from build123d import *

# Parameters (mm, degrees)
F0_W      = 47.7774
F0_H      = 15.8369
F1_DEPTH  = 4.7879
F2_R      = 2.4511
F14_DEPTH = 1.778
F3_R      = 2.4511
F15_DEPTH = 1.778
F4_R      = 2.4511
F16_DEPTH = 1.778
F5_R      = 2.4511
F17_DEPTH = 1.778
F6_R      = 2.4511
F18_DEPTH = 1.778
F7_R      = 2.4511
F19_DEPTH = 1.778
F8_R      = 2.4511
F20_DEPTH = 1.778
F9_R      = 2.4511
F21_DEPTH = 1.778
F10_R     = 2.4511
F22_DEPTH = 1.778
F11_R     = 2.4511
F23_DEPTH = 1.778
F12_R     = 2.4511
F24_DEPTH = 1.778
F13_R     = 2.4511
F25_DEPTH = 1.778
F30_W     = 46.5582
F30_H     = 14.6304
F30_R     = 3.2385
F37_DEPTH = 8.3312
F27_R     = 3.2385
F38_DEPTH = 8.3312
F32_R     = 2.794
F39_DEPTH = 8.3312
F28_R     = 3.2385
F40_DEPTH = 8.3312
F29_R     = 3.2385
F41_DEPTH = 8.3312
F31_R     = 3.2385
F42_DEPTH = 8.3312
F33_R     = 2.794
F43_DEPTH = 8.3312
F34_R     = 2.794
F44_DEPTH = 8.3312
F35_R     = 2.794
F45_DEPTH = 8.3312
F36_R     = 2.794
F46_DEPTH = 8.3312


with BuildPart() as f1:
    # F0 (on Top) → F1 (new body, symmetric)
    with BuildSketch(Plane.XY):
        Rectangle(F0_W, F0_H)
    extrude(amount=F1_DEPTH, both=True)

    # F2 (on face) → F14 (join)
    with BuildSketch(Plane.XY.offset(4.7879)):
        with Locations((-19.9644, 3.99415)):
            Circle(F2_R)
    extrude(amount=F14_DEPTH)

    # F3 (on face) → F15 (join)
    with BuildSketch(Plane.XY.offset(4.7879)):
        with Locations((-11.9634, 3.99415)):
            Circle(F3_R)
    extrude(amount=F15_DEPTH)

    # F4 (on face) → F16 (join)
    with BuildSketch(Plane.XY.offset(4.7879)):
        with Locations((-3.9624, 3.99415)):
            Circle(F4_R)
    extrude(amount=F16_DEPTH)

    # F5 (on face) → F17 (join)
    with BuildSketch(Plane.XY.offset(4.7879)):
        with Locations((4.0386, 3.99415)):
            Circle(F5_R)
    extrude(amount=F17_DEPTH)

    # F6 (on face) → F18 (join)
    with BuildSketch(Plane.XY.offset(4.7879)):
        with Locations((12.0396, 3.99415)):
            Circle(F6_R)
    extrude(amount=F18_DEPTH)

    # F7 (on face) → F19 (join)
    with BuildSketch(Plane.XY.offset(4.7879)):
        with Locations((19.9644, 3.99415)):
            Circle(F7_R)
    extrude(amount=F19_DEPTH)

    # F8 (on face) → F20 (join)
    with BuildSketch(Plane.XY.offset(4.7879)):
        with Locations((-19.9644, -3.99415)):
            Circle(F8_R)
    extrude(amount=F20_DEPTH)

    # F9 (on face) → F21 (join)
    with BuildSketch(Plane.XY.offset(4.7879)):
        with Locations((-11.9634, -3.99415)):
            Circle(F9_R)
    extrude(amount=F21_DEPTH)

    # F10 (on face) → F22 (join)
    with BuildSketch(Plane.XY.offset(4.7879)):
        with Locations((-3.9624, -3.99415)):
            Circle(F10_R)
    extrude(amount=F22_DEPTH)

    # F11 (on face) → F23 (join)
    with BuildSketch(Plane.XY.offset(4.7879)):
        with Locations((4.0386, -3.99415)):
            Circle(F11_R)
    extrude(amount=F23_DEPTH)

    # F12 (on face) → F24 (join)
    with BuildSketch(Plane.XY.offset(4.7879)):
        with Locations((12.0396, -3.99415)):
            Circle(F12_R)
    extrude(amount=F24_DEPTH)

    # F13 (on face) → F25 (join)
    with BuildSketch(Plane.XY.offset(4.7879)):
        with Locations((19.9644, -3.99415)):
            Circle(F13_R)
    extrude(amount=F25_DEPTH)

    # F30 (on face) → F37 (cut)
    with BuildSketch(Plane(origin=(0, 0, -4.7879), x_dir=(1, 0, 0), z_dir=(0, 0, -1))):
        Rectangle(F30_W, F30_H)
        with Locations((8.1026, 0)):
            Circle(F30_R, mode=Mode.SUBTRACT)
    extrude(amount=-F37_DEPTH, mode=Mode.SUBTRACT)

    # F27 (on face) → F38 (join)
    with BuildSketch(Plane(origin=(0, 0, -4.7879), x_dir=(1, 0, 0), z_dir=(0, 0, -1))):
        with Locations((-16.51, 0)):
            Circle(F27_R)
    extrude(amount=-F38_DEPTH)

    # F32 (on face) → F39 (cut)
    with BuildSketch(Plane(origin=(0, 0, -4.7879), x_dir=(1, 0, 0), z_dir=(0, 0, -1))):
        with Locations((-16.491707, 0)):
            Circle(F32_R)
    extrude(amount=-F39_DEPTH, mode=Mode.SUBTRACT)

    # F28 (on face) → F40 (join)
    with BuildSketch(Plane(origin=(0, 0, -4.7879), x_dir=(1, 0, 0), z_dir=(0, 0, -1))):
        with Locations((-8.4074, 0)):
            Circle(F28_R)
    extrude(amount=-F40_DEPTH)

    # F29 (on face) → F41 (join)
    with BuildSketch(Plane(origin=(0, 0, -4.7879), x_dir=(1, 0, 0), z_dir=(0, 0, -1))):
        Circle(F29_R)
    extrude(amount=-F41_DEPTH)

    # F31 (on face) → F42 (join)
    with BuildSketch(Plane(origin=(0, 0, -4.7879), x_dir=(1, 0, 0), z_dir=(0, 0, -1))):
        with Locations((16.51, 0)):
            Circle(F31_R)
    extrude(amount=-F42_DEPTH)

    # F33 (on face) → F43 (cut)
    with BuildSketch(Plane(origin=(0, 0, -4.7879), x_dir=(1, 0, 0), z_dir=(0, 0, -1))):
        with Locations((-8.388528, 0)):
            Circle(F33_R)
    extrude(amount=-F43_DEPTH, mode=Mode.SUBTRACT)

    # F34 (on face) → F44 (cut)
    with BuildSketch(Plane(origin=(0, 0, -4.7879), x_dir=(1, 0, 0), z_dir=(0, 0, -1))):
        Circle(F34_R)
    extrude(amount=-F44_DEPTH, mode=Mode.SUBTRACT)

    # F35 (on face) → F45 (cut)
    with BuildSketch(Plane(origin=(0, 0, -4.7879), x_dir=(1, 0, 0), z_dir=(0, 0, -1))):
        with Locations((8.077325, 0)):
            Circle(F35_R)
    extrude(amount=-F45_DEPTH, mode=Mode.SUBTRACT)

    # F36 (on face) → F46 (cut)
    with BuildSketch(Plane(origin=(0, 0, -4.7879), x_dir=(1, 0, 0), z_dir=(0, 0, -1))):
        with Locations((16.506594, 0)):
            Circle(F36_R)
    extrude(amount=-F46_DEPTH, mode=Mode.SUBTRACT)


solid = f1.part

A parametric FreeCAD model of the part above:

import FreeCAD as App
import Part
import Sketcher

V = App.Vector
Q = App.Units.Quantity


def add_polygon(sketch, points):
    """Adds a closed chain of lines whose ends are joined by coincident constraints."""
    first, n = sketch.GeometryCount, len(points)
    for a, b in zip(points, points[1:] + points[:1]):
        sketch.addGeometry(Part.LineSegment(App.Vector(*a, 0), App.Vector(*b, 0)), False)
    for i in range(n):
        sketch.addConstraint(Sketcher.Constraint("Coincident", first + i, 2, first + (i + 1) % n, 1))

doc = App.newDocument("Part")
params = doc.addObject("Spreadsheet::Sheet", "Params")
for row, (alias, value) in enumerate([
    ("sketch1_width", "1.881 in"),
    ("pad1_length", "0.377 in"),
    ("sketch2_diameter", "0.193 in"),
    ("pad2_length", "0.07 in"),
    ("sketch3_diameter", "0.193 in"),
    ("pad3_length", "0.07 in"),
    ("sketch4_diameter", "0.193 in"),
    ("pad4_length", "0.07 in"),
    ("sketch5_diameter", "0.193 in"),
    ("pad5_length", "0.07 in"),
    ("sketch6_diameter", "0.193 in"),
    ("pad6_length", "0.07 in"),
    ("sketch7_diameter", "0.193 in"),
    ("pad7_length", "0.07 in"),
    ("sketch8_diameter", "0.193 in"),
    ("pad8_length", "0.07 in"),
    ("sketch9_diameter", "0.193 in"),
    ("pad9_length", "0.07 in"),
    ("sketch10_diameter", "0.193 in"),
    ("pad10_length", "0.07 in"),
    ("sketch11_diameter", "0.193 in"),
    ("pad11_length", "0.07 in"),
    ("sketch12_diameter", "0.193 in"),
    ("pad12_length", "0.07 in"),
    ("sketch13_diameter", "0.193 in"),
    ("pad13_length", "0.07 in"),
    ("sketch14_diameter", "0.255 in"),
    ("sketch14_width", "1.833 in"),
    ("sketch14_height", "0.576 in"),
    ("pocket1_length", "0.328 in"),
    ("sketch15_diameter", "0.255 in"),
    ("pad14_length", "0.328 in"),
    ("sketch16_diameter", "0.22 in"),
    ("pocket2_length", "0.328 in"),
    ("sketch17_diameter", "0.255 in"),
    ("pad15_length", "0.328 in"),
    ("sketch18_diameter", "0.255 in"),
    ("pad16_length", "0.328 in"),
    ("sketch19_diameter", "0.255 in"),
    ("pad17_length", "0.328 in"),
    ("sketch20_diameter", "0.22 in"),
    ("pocket3_length", "0.328 in"),
    ("sketch21_diameter", "0.22 in"),
    ("pocket4_length", "0.328 in"),
    ("sketch22_diameter", "0.22 in"),
    ("pocket5_length", "0.328 in"),
    ("sketch23_diameter", "0.22 in"),
    ("pocket6_length", "0.328 in"),
], start=1):
    params.set(f"A{row}", alias)
    params.set(f"B{row}", "=" + value)
    params.setAlias(f"B{row}", alias)

body = doc.addObject("PartDesign::Body", "Body")

# Sketch on XY plane
sketch1 = body.newObject("Sketcher::SketchObject", "Sketch")
sketch1.AttachmentSupport = (doc.getObject("XY_Plane"), [""])
sketch1.MapMode = "FlatFace"
add_polygon(sketch1, [(-24, 8), (-24, -8), (24, -8), (24, 8)])  # lines 0-3
sketch1.addConstraint([
    Sketcher.Constraint("Vertical", 0),
    Sketcher.Constraint("Horizontal", 1),
    Sketcher.Constraint("Vertical", 2),
    Sketcher.Constraint("Horizontal", 3),
    Sketcher.Constraint("Symmetric", 0, 2, 2, 2, -1, 1),
    Sketcher.Constraint("DistanceX", 1, 1, 1, 2, Q("1.881 in")),
    Sketcher.Constraint("DistanceY", 0, 2, 0, 1, Q("0.6235 in")),
])
sketch1.setExpression("Constraints[9]", "Params.sketch1_width")
pad1 = body.newObject("PartDesign::Pad", "Pad")
pad1.Profile = sketch1
pad1.setExpression("Length", "Params.pad1_length")
pad1.Midplane = True

# Sketch on XY plane
sketch2 = body.newObject("Sketcher::SketchObject", "Sketch001")
sketch2.AttachmentSupport = (doc.getObject("XY_Plane"), [""])
sketch2.MapMode = "FlatFace"
sketch2.AttachmentOffset = App.Placement(V(0, 0, 0.1885 * 25.4), App.Rotation())
sketch2.addGeometry(Part.Circle(V(-20, 4, 0), V(0, 0, 1), 2.5), False)
sketch2.addConstraint([
    Sketcher.Constraint("Diameter", 0, Q("0.193 in")),
    Sketcher.Constraint("DistanceX", 0, 3, -1, 1, Q("0.786 in")),
    Sketcher.Constraint("DistanceY", -1, 1, 0, 3, Q("3.99415 mm")),
])
sketch2.setExpression("Constraints[0]", "Params.sketch2_diameter")
pad2 = body.newObject("PartDesign::Pad", "Pad001")
pad2.Profile = sketch2
pad2.setExpression("Length", "Params.pad2_length")

# Sketch on XY plane
sketch3 = body.newObject("Sketcher::SketchObject", "Sketch002")
sketch3.AttachmentSupport = (doc.getObject("XY_Plane"), [""])
sketch3.MapMode = "FlatFace"
sketch3.AttachmentOffset = App.Placement(V(0, 0, 0.1885 * 25.4), App.Rotation())
sketch3.addGeometry(Part.Circle(V(-12, 4, 0), V(0, 0, 1), 2.5), False)
sketch3.addConstraint([
    Sketcher.Constraint("Diameter", 0, Q("0.193 in")),
    Sketcher.Constraint("DistanceX", 0, 3, -1, 1, Q("0.471 in")),
    Sketcher.Constraint("DistanceY", -1, 1, 0, 3, Q("3.99415 mm")),
])
sketch3.setExpression("Constraints[0]", "Params.sketch3_diameter")
pad3 = body.newObject("PartDesign::Pad", "Pad002")
pad3.Profile = sketch3
pad3.setExpression("Length", "Params.pad3_length")

# Sketch on XY plane
sketch4 = body.newObject("Sketcher::SketchObject", "Sketch003")
sketch4.AttachmentSupport = (doc.getObject("XY_Plane"), [""])
sketch4.MapMode = "FlatFace"
sketch4.AttachmentOffset = App.Placement(V(0, 0, 0.1885 * 25.4), App.Rotation())
sketch4.addGeometry(Part.Circle(V(-4, 4, 0), V(0, 0, 1), 2.5), False)
sketch4.addConstraint([
    Sketcher.Constraint("Diameter", 0, Q("0.193 in")),
    Sketcher.Constraint("DistanceX", 0, 3, -1, 1, Q("0.156 in")),
    Sketcher.Constraint("DistanceY", -1, 1, 0, 3, Q("3.99415 mm")),
])
sketch4.setExpression("Constraints[0]", "Params.sketch4_diameter")
pad4 = body.newObject("PartDesign::Pad", "Pad003")
pad4.Profile = sketch4
pad4.setExpression("Length", "Params.pad4_length")

# Sketch on XY plane
sketch5 = body.newObject("Sketcher::SketchObject", "Sketch004")
sketch5.AttachmentSupport = (doc.getObject("XY_Plane"), [""])
sketch5.MapMode = "FlatFace"
sketch5.AttachmentOffset = App.Placement(V(0, 0, 0.1885 * 25.4), App.Rotation())
sketch5.addGeometry(Part.Circle(V(4, 4, 0), V(0, 0, 1), 2.5), False)
sketch5.addConstraint([
    Sketcher.Constraint("Diameter", 0, Q("0.193 in")),
    Sketcher.Constraint("DistanceX", -1, 1, 0, 3, Q("0.159 in")),
    Sketcher.Constraint("DistanceY", -1, 1, 0, 3, Q("3.99415 mm")),
])
sketch5.setExpression("Constraints[0]", "Params.sketch5_diameter")
pad5 = body.newObject("PartDesign::Pad", "Pad004")
pad5.Profile = sketch5
pad5.setExpression("Length", "Params.pad5_length")

# Sketch on XY plane
sketch6 = body.newObject("Sketcher::SketchObject", "Sketch005")
sketch6.AttachmentSupport = (doc.getObject("XY_Plane"), [""])
sketch6.MapMode = "FlatFace"
sketch6.AttachmentOffset = App.Placement(V(0, 0, 0.1885 * 25.4), App.Rotation())
sketch6.addGeometry(Part.Circle(V(12, 4, 0), V(0, 0, 1), 2.5), False)
sketch6.addConstraint([
    Sketcher.Constraint("Diameter", 0, Q("0.193 in")),
    Sketcher.Constraint("DistanceX", -1, 1, 0, 3, Q("0.474 in")),
    Sketcher.Constraint("DistanceY", -1, 1, 0, 3, Q("3.99415 mm")),
])
sketch6.setExpression("Constraints[0]", "Params.sketch6_diameter")
pad6 = body.newObject("PartDesign::Pad", "Pad005")
pad6.Profile = sketch6
pad6.setExpression("Length", "Params.pad6_length")

# Sketch on XY plane
sketch7 = body.newObject("Sketcher::SketchObject", "Sketch006")
sketch7.AttachmentSupport = (doc.getObject("XY_Plane"), [""])
sketch7.MapMode = "FlatFace"
sketch7.AttachmentOffset = App.Placement(V(0, 0, 0.1885 * 25.4), App.Rotation())
sketch7.addGeometry(Part.Circle(V(20, 4, 0), V(0, 0, 1), 2.5), False)
sketch7.addConstraint([
    Sketcher.Constraint("Diameter", 0, Q("0.193 in")),
    Sketcher.Constraint("DistanceX", -1, 1, 0, 3, Q("0.786 in")),
    Sketcher.Constraint("DistanceY", -1, 1, 0, 3, Q("3.99415 mm")),
])
sketch7.setExpression("Constraints[0]", "Params.sketch7_diameter")
pad7 = body.newObject("PartDesign::Pad", "Pad006")
pad7.Profile = sketch7
pad7.setExpression("Length", "Params.pad7_length")

# Sketch on XY plane
sketch8 = body.newObject("Sketcher::SketchObject", "Sketch007")
sketch8.AttachmentSupport = (doc.getObject("XY_Plane"), [""])
sketch8.MapMode = "FlatFace"
sketch8.AttachmentOffset = App.Placement(V(0, 0, 0.1885 * 25.4), App.Rotation())
sketch8.addGeometry(Part.Circle(V(-20, -4, 0), V(0, 0, 1), 2.5), False)
sketch8.addConstraint([
    Sketcher.Constraint("Diameter", 0, Q("0.193 in")),
    Sketcher.Constraint("DistanceX", 0, 3, -1, 1, Q("0.786 in")),
    Sketcher.Constraint("DistanceY", 0, 3, -1, 1, Q("3.99415 mm")),
])
sketch8.setExpression("Constraints[0]", "Params.sketch8_diameter")
pad8 = body.newObject("PartDesign::Pad", "Pad007")
pad8.Profile = sketch8
pad8.setExpression("Length", "Params.pad8_length")

# Sketch on XY plane
sketch9 = body.newObject("Sketcher::SketchObject", "Sketch008")
sketch9.AttachmentSupport = (doc.getObject("XY_Plane"), [""])
sketch9.MapMode = "FlatFace"
sketch9.AttachmentOffset = App.Placement(V(0, 0, 0.1885 * 25.4), App.Rotation())
sketch9.addGeometry(Part.Circle(V(-12, -4, 0), V(0, 0, 1), 2.5), False)
sketch9.addConstraint([
    Sketcher.Constraint("Diameter", 0, Q("0.193 in")),
    Sketcher.Constraint("DistanceX", 0, 3, -1, 1, Q("0.471 in")),
    Sketcher.Constraint("DistanceY", 0, 3, -1, 1, Q("3.99415 mm")),
])
sketch9.setExpression("Constraints[0]", "Params.sketch9_diameter")
pad9 = body.newObject("PartDesign::Pad", "Pad008")
pad9.Profile = sketch9
pad9.setExpression("Length", "Params.pad9_length")

# Sketch on XY plane
sketch10 = body.newObject("Sketcher::SketchObject", "Sketch009")
sketch10.AttachmentSupport = (doc.getObject("XY_Plane"), [""])
sketch10.MapMode = "FlatFace"
sketch10.AttachmentOffset = App.Placement(V(0, 0, 0.1885 * 25.4), App.Rotation())
sketch10.addGeometry(Part.Circle(V(-4, -4, 0), V(0, 0, 1), 2.5), False)
sketch10.addConstraint([
    Sketcher.Constraint("Diameter", 0, Q("0.193 in")),
    Sketcher.Constraint("DistanceX", 0, 3, -1, 1, Q("0.156 in")),
    Sketcher.Constraint("DistanceY", 0, 3, -1, 1, Q("3.99415 mm")),
])
sketch10.setExpression("Constraints[0]", "Params.sketch10_diameter")
pad10 = body.newObject("PartDesign::Pad", "Pad009")
pad10.Profile = sketch10
pad10.setExpression("Length", "Params.pad10_length")

# Sketch on XY plane
sketch11 = body.newObject("Sketcher::SketchObject", "Sketch010")
sketch11.AttachmentSupport = (doc.getObject("XY_Plane"), [""])
sketch11.MapMode = "FlatFace"
sketch11.AttachmentOffset = App.Placement(V(0, 0, 0.1885 * 25.4), App.Rotation())
sketch11.addGeometry(Part.Circle(V(4, -4, 0), V(0, 0, 1), 2.5), False)
sketch11.addConstraint([
    Sketcher.Constraint("Diameter", 0, Q("0.193 in")),
    Sketcher.Constraint("DistanceX", -1, 1, 0, 3, Q("0.159 in")),
    Sketcher.Constraint("DistanceY", 0, 3, -1, 1, Q("3.99415 mm")),
])
sketch11.setExpression("Constraints[0]", "Params.sketch11_diameter")
pad11 = body.newObject("PartDesign::Pad", "Pad010")
pad11.Profile = sketch11
pad11.setExpression("Length", "Params.pad11_length")

# Sketch on XY plane
sketch12 = body.newObject("Sketcher::SketchObject", "Sketch011")
sketch12.AttachmentSupport = (doc.getObject("XY_Plane"), [""])
sketch12.MapMode = "FlatFace"
sketch12.AttachmentOffset = App.Placement(V(0, 0, 0.1885 * 25.4), App.Rotation())
sketch12.addGeometry(Part.Circle(V(12, -4, 0), V(0, 0, 1), 2.5), False)
sketch12.addConstraint([
    Sketcher.Constraint("Diameter", 0, Q("0.193 in")),
    Sketcher.Constraint("DistanceX", -1, 1, 0, 3, Q("0.474 in")),
    Sketcher.Constraint("DistanceY", 0, 3, -1, 1, Q("3.99415 mm")),
])
sketch12.setExpression("Constraints[0]", "Params.sketch12_diameter")
pad12 = body.newObject("PartDesign::Pad", "Pad011")
pad12.Profile = sketch12
pad12.setExpression("Length", "Params.pad12_length")

# Sketch on XY plane
sketch13 = body.newObject("Sketcher::SketchObject", "Sketch012")
sketch13.AttachmentSupport = (doc.getObject("XY_Plane"), [""])
sketch13.MapMode = "FlatFace"
sketch13.AttachmentOffset = App.Placement(V(0, 0, 0.1885 * 25.4), App.Rotation())
sketch13.addGeometry(Part.Circle(V(20, -4, 0), V(0, 0, 1), 2.5), False)
sketch13.addConstraint([
    Sketcher.Constraint("Diameter", 0, Q("0.193 in")),
    Sketcher.Constraint("DistanceX", -1, 1, 0, 3, Q("0.786 in")),
    Sketcher.Constraint("DistanceY", 0, 3, -1, 1, Q("3.99415 mm")),
])
sketch13.setExpression("Constraints[0]", "Params.sketch13_diameter")
pad13 = body.newObject("PartDesign::Pad", "Pad012")
pad13.Profile = sketch13
pad13.setExpression("Length", "Params.pad13_length")

# Sketch on XY plane
sketch14 = body.newObject("Sketcher::SketchObject", "Sketch013")
sketch14.AttachmentSupport = (doc.getObject("XY_Plane"), [""])
sketch14.MapMode = "FlatFace"
sketch14.AttachmentOffset = App.Placement(V(0, 0, -0.1885 * 25.4), App.Rotation())
add_polygon(sketch14, [(-23.3, -7.3), (-23.3, 7.3), (23.3, 7.3), (23.3, -7.3)])  # lines 0-3
sketch14.addGeometry(Part.Circle(V(8.1, 0, 0), V(0, 0, 1), 3.2), False)  # 4
sketch14.addConstraint([
    Sketcher.Constraint("Vertical", 0),
    Sketcher.Constraint("Horizontal", 1),
    Sketcher.Constraint("Vertical", 2),
    Sketcher.Constraint("Horizontal", 3),
    Sketcher.Constraint("Symmetric", 0, 2, 2, 2, -1, 1),
    Sketcher.Constraint("PointOnObject", 4, 3, -1),
    Sketcher.Constraint("Diameter", 4, Q("0.255 in")),
    Sketcher.Constraint("DistanceX", 1, 1, 1, 2, Q("1.833 in")),
    Sketcher.Constraint("DistanceY", 0, 1, 0, 2, Q("0.576 in")),
    Sketcher.Constraint("DistanceX", -1, 1, 4, 3, Q("0.319 in")),
])
sketch14.setExpression("Constraints[10]", "Params.sketch14_diameter")
sketch14.setExpression("Constraints[11]", "Params.sketch14_width")
sketch14.setExpression("Constraints[12]", "Params.sketch14_height")
pocket1 = body.newObject("PartDesign::Pocket", "Pocket")
pocket1.Profile = sketch14
pocket1.setExpression("Length", "Params.pocket1_length")
pocket1.Reversed = True

# Sketch on XY plane
sketch15 = body.newObject("Sketcher::SketchObject", "Sketch014")
sketch15.AttachmentSupport = (doc.getObject("XY_Plane"), [""])
sketch15.MapMode = "FlatFace"
sketch15.AttachmentOffset = App.Placement(V(0, 0, -0.1885 * 25.4), App.Rotation())
sketch15.addGeometry(Part.Circle(V(-16.5, 0, 0), V(0, 0, 1), 3.2), False)
sketch15.addConstraint([
    Sketcher.Constraint("PointOnObject", 0, 3, -1),
    Sketcher.Constraint("Diameter", 0, Q("0.255 in")),
    Sketcher.Constraint("DistanceX", 0, 3, -1, 1, Q("0.65 in")),
])
sketch15.setExpression("Constraints[1]", "Params.sketch15_diameter")
pad14 = body.newObject("PartDesign::Pad", "Pad013")
pad14.Profile = sketch15
pad14.setExpression("Length", "Params.pad14_length")

# Sketch on XY plane
sketch16 = body.newObject("Sketcher::SketchObject", "Sketch015")
sketch16.AttachmentSupport = (doc.getObject("XY_Plane"), [""])
sketch16.MapMode = "FlatFace"
sketch16.AttachmentOffset = App.Placement(V(0, 0, -0.1885 * 25.4), App.Rotation())
sketch16.addGeometry(Part.Circle(V(-16.5, 0, 0), V(0, 0, 1), 2.8), False)
sketch16.addConstraint([
    Sketcher.Constraint("PointOnObject", 0, 3, -1),
    Sketcher.Constraint("Diameter", 0, Q("0.22 in")),
    Sketcher.Constraint("DistanceX", 0, 3, -1, 1, Q("16.491707 mm")),
])
sketch16.setExpression("Constraints[1]", "Params.sketch16_diameter")
pocket2 = body.newObject("PartDesign::Pocket", "Pocket001")
pocket2.Profile = sketch16
pocket2.setExpression("Length", "Params.pocket2_length")
pocket2.Reversed = True

# Sketch on XY plane
sketch17 = body.newObject("Sketcher::SketchObject", "Sketch016")
sketch17.AttachmentSupport = (doc.getObject("XY_Plane"), [""])
sketch17.MapMode = "FlatFace"
sketch17.AttachmentOffset = App.Placement(V(0, 0, -0.1885 * 25.4), App.Rotation())
sketch17.addGeometry(Part.Circle(V(-8.4, 0, 0), V(0, 0, 1), 3.2), False)
sketch17.addConstraint([
    Sketcher.Constraint("PointOnObject", 0, 3, -1),
    Sketcher.Constraint("Diameter", 0, Q("0.255 in")),
    Sketcher.Constraint("DistanceX", 0, 3, -1, 1, Q("0.331 in")),
])
sketch17.setExpression("Constraints[1]", "Params.sketch17_diameter")
pad15 = body.newObject("PartDesign::Pad", "Pad014")
pad15.Profile = sketch17
pad15.setExpression("Length", "Params.pad15_length")

# Sketch on XY plane
sketch18 = body.newObject("Sketcher::SketchObject", "Sketch017")
sketch18.AttachmentSupport = (doc.getObject("XY_Plane"), [""])
sketch18.MapMode = "FlatFace"
sketch18.AttachmentOffset = App.Placement(V(0, 0, -0.1885 * 25.4), App.Rotation())
sketch18.addGeometry(Part.Circle(V(0, 0, 0), V(0, 0, 1), 3.2), False)
sketch18.addConstraint([
    Sketcher.Constraint("Coincident", 0, 3, -1, 1),
    Sketcher.Constraint("Diameter", 0, Q("0.255 in")),
])
sketch18.setExpression("Constraints[1]", "Params.sketch18_diameter")
pad16 = body.newObject("PartDesign::Pad", "Pad015")
pad16.Profile = sketch18
pad16.setExpression("Length", "Params.pad16_length")

# Sketch on XY plane
sketch19 = body.newObject("Sketcher::SketchObject", "Sketch018")
sketch19.AttachmentSupport = (doc.getObject("XY_Plane"), [""])
sketch19.MapMode = "FlatFace"
sketch19.AttachmentOffset = App.Placement(V(0, 0, -0.1885 * 25.4), App.Rotation())
sketch19.addGeometry(Part.Circle(V(16.5, 0, 0), V(0, 0, 1), 3.2), False)
sketch19.addConstraint([
    Sketcher.Constraint("PointOnObject", 0, 3, -1),
    Sketcher.Constraint("Diameter", 0, Q("0.255 in")),
    Sketcher.Constraint("DistanceX", -1, 1, 0, 3, Q("0.65 in")),
])
sketch19.setExpression("Constraints[1]", "Params.sketch19_diameter")
pad17 = body.newObject("PartDesign::Pad", "Pad016")
pad17.Profile = sketch19
pad17.setExpression("Length", "Params.pad17_length")

# Sketch on XY plane
sketch20 = body.newObject("Sketcher::SketchObject", "Sketch019")
sketch20.AttachmentSupport = (doc.getObject("XY_Plane"), [""])
sketch20.MapMode = "FlatFace"
sketch20.AttachmentOffset = App.Placement(V(0, 0, -0.1885 * 25.4), App.Rotation())
sketch20.addGeometry(Part.Circle(V(-8.4, 0, 0), V(0, 0, 1), 2.8), False)
sketch20.addConstraint([
    Sketcher.Constraint("PointOnObject", 0, 3, -1),
    Sketcher.Constraint("Diameter", 0, Q("0.22 in")),
    Sketcher.Constraint("DistanceX", 0, 3, -1, 1, Q("8.388528 mm")),
])
sketch20.setExpression("Constraints[1]", "Params.sketch20_diameter")
pocket3 = body.newObject("PartDesign::Pocket", "Pocket002")
pocket3.Profile = sketch20
pocket3.setExpression("Length", "Params.pocket3_length")
pocket3.Reversed = True

# Sketch on XY plane
sketch21 = body.newObject("Sketcher::SketchObject", "Sketch020")
sketch21.AttachmentSupport = (doc.getObject("XY_Plane"), [""])
sketch21.MapMode = "FlatFace"
sketch21.AttachmentOffset = App.Placement(V(0, 0, -0.1885 * 25.4), App.Rotation())
sketch21.addGeometry(Part.Circle(V(0, 0, 0), V(0, 0, 1), 2.8), False)
sketch21.addConstraint([
    Sketcher.Constraint("Coincident", 0, 3, -1, 1),
    Sketcher.Constraint("Diameter", 0, Q("0.22 in")),
])
sketch21.setExpression("Constraints[1]", "Params.sketch21_diameter")
pocket4 = body.newObject("PartDesign::Pocket", "Pocket003")
pocket4.Profile = sketch21
pocket4.setExpression("Length", "Params.pocket4_length")
pocket4.Reversed = True

# Sketch on XY plane
sketch22 = body.newObject("Sketcher::SketchObject", "Sketch021")
sketch22.AttachmentSupport = (doc.getObject("XY_Plane"), [""])
sketch22.MapMode = "FlatFace"
sketch22.AttachmentOffset = App.Placement(V(0, 0, -0.1885 * 25.4), App.Rotation())
sketch22.addGeometry(Part.Circle(V(8.1, 0, 0), V(0, 0, 1), 2.8), False)
sketch22.addConstraint([
    Sketcher.Constraint("PointOnObject", 0, 3, -1),
    Sketcher.Constraint("Diameter", 0, Q("0.22 in")),
    Sketcher.Constraint("DistanceX", -1, 1, 0, 3, Q("8.077325 mm")),
])
sketch22.setExpression("Constraints[1]", "Params.sketch22_diameter")
pocket5 = body.newObject("PartDesign::Pocket", "Pocket004")
pocket5.Profile = sketch22
pocket5.setExpression("Length", "Params.pocket5_length")
pocket5.Reversed = True

# Sketch on XY plane
sketch23 = body.newObject("Sketcher::SketchObject", "Sketch022")
sketch23.AttachmentSupport = (doc.getObject("XY_Plane"), [""])
sketch23.MapMode = "FlatFace"
sketch23.AttachmentOffset = App.Placement(V(0, 0, -0.1885 * 25.4), App.Rotation())
sketch23.addGeometry(Part.Circle(V(16.5, 0, 0), V(0, 0, 1), 2.8), False)
sketch23.addConstraint([
    Sketcher.Constraint("PointOnObject", 0, 3, -1),
    Sketcher.Constraint("Diameter", 0, Q("0.22 in")),
    Sketcher.Constraint("DistanceX", -1, 1, 0, 3, Q("16.506594 mm")),
])
sketch23.setExpression("Constraints[1]", "Params.sketch23_diameter")
pocket6 = body.newObject("PartDesign::Pocket", "Pocket005")
pocket6.Profile = sketch23
pocket6.setExpression("Length", "Params.pocket6_length")
pocket6.Reversed = True

doc.recompute()
